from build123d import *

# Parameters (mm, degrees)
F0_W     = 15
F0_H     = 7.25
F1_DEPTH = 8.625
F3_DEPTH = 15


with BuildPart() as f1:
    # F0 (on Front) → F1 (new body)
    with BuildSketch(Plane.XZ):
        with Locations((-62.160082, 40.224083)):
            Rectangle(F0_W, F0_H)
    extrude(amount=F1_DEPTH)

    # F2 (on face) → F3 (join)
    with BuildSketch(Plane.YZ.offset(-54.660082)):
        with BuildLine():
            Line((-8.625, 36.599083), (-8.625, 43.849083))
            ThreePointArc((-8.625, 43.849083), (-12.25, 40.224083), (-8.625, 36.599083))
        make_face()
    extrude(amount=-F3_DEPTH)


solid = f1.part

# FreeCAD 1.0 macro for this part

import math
import FreeCAD as App
import Part
import Sketcher
from FreeCAD import Vector
Q = App.Units.Quantity

doc = App.newDocument("Part")
body = doc.addObject("PartDesign::Body", "Body")

# Sketch on XZ plane
sketch1 = body.newObject("Sketcher::SketchObject", "Sketch")
sketch1.AttachmentSupport = (doc.getObject("XZ_Plane"), [""])
sketch1.MapMode = "FlatFace"
sketch1.addGeometry([
    Part.LineSegment(Vector(-70, 44, 0), Vector(-70, 37, 0)),
    Part.LineSegment(Vector(-70, 37, 0), Vector(-55, 37, 0)),
    Part.LineSegment(Vector(-55, 37, 0), Vector(-55, 44, 0)),
    Part.LineSegment(Vector(-55, 44, 0), Vector(-70, 44, 0)),
], False)
sketch1.addConstraint([
    Sketcher.Constraint("Coincident", 0, 2, 1, 1),
    Sketcher.Constraint("Coincident", 1, 2, 2, 1),
    Sketcher.Constraint("Coincident", 2, 2, 3, 1),
    Sketcher.Constraint("Coincident", 3, 2, 0, 1),
    Sketcher.Constraint("Vertical", 0),
    Sketcher.Constraint("Horizontal", 1),
    Sketcher.Constraint("Vertical", 2),
    Sketcher.Constraint("Horizontal", 3),
    Sketcher.Constraint("DistanceX", 1, 1, 1, 2, Q("15 mm")),
    Sketcher.Constraint("DistanceY", 0, 2, 0, 1, Q("7.25 mm")),
    Sketcher.Constraint("DistanceX", 0, 2, -1, 1, Q("69.660082 mm")),
    Sketcher.Constraint("DistanceY", -1, 1, 0, 2, Q("36.599083 mm")),
])
pad1 = body.newObject("PartDesign::Pad", "Pad")
pad1.Profile = sketch1
pad1.Length = 8.625

# Sketch on YZ plane
sketch2 = body.newObject("Sketcher::SketchObject", "Sketch001")
sketch2.AttachmentSupport = (doc.getObject("YZ_Plane"), [""])
sketch2.MapMode = "FlatFace"
sketch2.AttachmentOffset = App.Placement(Vector(0, 0, -54.660082), App.Rotation())
sketch2.addGeometry([
    Part.LineSegment(Vector(-8.6, 36.6, 0), Vector(-8.6, 43.8, 0)),
    Part.ArcOfCircle(Part.Circle(Vector(-8.6, 40.2, 0), Vector(0, 0, 1), 3.6), math.radians(90), math.radians(270)),
], False)
sketch2.addConstraint([
    Sketcher.Constraint("Coincident", 0, 1, 1, 2),
    Sketcher.Constraint("Coincident", 1, 1, 0, 2),
    Sketcher.Constraint("Vertical", 0),
    Sketcher.Constraint("Vertical", 1, 3, 0, 1),
    Sketcher.Constraint("Radius", 1, Q("3.625 mm")),
    Sketcher.Constraint("DistanceX", 1, 3, -1, 1, Q("8.625 mm")),
    Sketcher.Constraint("DistanceY", -1, 1, 1, 3, Q("40.224083 mm")),
])
pad2 = body.newObject("PartDesign::Pad", "Pad001")
pad2.Profile = sketch2
pad2.Length = 15
pad2.Reversed = True

doc.recompute()
